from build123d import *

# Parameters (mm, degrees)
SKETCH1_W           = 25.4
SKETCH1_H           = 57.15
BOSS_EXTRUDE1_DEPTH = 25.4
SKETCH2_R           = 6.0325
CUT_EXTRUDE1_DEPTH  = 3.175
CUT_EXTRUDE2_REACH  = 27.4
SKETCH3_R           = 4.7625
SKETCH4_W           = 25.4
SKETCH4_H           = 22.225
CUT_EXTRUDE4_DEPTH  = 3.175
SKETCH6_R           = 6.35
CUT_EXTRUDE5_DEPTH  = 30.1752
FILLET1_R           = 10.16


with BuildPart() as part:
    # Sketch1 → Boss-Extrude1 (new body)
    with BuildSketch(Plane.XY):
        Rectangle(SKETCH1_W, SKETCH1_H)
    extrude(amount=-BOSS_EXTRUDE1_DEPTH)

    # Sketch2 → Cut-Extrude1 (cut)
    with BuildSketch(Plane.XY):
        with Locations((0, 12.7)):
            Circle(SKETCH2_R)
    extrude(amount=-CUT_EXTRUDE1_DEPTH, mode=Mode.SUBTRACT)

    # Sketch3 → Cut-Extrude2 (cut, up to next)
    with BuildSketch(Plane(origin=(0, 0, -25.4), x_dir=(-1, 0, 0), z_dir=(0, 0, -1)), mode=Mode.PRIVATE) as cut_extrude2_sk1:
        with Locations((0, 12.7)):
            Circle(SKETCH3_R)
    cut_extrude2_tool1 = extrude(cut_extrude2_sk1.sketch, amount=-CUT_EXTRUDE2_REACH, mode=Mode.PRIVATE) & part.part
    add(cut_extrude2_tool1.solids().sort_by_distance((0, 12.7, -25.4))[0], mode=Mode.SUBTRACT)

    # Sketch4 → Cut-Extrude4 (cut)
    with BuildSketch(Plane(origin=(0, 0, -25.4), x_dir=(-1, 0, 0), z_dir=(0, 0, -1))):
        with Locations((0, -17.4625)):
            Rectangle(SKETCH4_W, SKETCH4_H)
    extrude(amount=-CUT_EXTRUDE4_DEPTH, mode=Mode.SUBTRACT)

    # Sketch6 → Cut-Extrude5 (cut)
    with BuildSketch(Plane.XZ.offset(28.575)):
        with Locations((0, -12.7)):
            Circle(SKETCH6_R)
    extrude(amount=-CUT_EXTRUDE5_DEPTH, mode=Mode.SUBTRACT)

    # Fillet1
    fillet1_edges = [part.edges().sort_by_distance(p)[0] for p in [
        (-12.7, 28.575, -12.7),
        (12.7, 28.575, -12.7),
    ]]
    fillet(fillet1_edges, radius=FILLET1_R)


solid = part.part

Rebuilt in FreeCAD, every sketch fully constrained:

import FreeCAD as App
import Part
import Sketcher
from FreeCAD import Vector
Q = App.Units.Quantity


def edges_at(feature, points):
    """Names of the edges that pass closest to the given points."""
    edges = feature.Shape.Edges
    near = lambda p: min(range(len(edges)), key=lambda i: edges[i].distToShape(Part.Vertex(*p))[0])
    return sorted({f"Edge{near(p) + 1}" for p in points})

doc = App.newDocument("Part")
body = doc.addObject("PartDesign::Body", "Body")

# Sketch on XY plane
sketch1 = doc.addObject("Sketcher::SketchObject", "Sketch")
body.addObject(sketch1)
sketch1.AttachmentSupport = (doc.XY_Plane, [""])
sketch1.MapMode = "FlatFace"
sketch1.addGeometry(Part.LineSegment(Vector(-13, 29, 0), Vector(-13, -29, 0)), False)
sketch1.addGeometry(Part.LineSegment(Vector(-13, -29, 0), Vector(13, -29, 0)), False)
sketch1.addGeometry(Part.LineSegment(Vector(13, -29, 0), Vector(13, 29, 0)), False)
sketch1.addGeometry(Part.LineSegment(Vector(13, 29, 0), Vector(-13, 29, 0)), False)
sketch1.addConstraint(Sketcher.Constraint("Coincident", 0, 2, 1, 1))
sketch1.addConstraint(Sketcher.Constraint("Coincident", 1, 2, 2, 1))
sketch1.addConstraint(Sketcher.Constraint("Coincident", 2, 2, 3, 1))
sketch1.addConstraint(Sketcher.Constraint("Coincident", 3, 2, 0, 1))
sketch1.addConstraint(Sketcher.Constraint("Vertical", 0))
sketch1.addConstraint(Sketcher.Constraint("Horizontal", 1))
sketch1.addConstraint(Sketcher.Constraint("Vertical", 2))
sketch1.addConstraint(Sketcher.Constraint("Horizontal", 3))
sketch1.addConstraint(Sketcher.Constraint("Symmetric", 0, 2, 2, 2, -1, 1))
sketch1.addConstraint(Sketcher.Constraint("DistanceX", 1, 1, 1, 2, Q("1 in")))
sketch1.addConstraint(Sketcher.Constraint("DistanceY", 0, 2, 0, 1, Q("2.25 in")))
pad1 = doc.addObject("PartDesign::Pad", "Pad")
body.addObject(pad1)
pad1.Profile = sketch1
pad1.Length = Q("1 in")
pad1.Reversed = True

# Sketch on XY plane
sketch2 = doc.addObject("Sketcher::SketchObject", "Sketch001")
body.addObject(sketch2)
sketch2.AttachmentSupport = (doc.XY_Plane, [""])
sketch2.MapMode = "FlatFace"
sketch2.addGeometry(Part.Circle(Vector(0, 13, 0), Vector(0, 0, 1), 6), False)
sketch2.addConstraint(Sketcher.Constraint("PointOnObject", 0, 3, -2))
sketch2.addConstraint(Sketcher.Constraint("Diameter", 0, Q("0.475 in")))
sketch2.addConstraint(Sketcher.Constraint("DistanceY", -1, 1, 0, 3, Q("0.5 in")))
pocket1 = doc.addObject("PartDesign::Pocket", "Pocket")
body.addObject(pocket1)
pocket1.Profile = sketch2
pocket1.Length = Q("0.125 in")

# Sketch on XY plane
sketch3 = doc.addObject("Sketcher::SketchObject", "Sketch002")
body.addObject(sketch3)
sketch3.AttachmentSupport = (doc.XY_Plane, [""])
sketch3.MapMode = "FlatFace"
sketch3.AttachmentOffset = App.Placement(Vector(0, 0, -1 * 25.4), App.Rotation())
sketch3.addGeometry(Part.Circle(Vector(0, 12.7, 0), Vector(0, 0, 1), 4.8), False)
sketch3.addConstraint(Sketcher.Constraint("PointOnObject", 0, 3, -2))
sketch3.addConstraint(Sketcher.Constraint("Diameter", 0, Q("0.375 in")))
sketch3.addConstraint(Sketcher.Constraint("DistanceY", -1, 1, 0, 3, Q("0.5 in")))
pocket2 = doc.addObject("PartDesign::Pocket", "Pocket001")
body.addObject(pocket2)
pocket2.Profile = sketch3
pocket2.Type = "UpToFirst"
pocket2.Reversed = True

# Sketch on XY plane
sketch4 = doc.addObject("Sketcher::SketchObject", "Sketch003")
body.addObject(sketch4)
sketch4.AttachmentSupport = (doc.XY_Plane, [""])
sketch4.MapMode = "FlatFace"
sketch4.AttachmentOffset = App.Placement(Vector(0, 0, -1 * 25.4), App.Rotation())
sketch4.addGeometry(Part.LineSegment(Vector(13, -6, 0), Vector(13, -29, 0)), False)
sketch4.addGeometry(Part.LineSegment(Vector(13, -29, 0), Vector(-13, -29, 0)), False)
sketch4.addGeometry(Part.LineSegment(Vector(-13, -29, 0), Vector(-13, -6, 0)), False)
sketch4.addGeometry(Part.LineSegment(Vector(-13, -6, 0), Vector(13, -6, 0)), False)
sketch4.addConstraint(Sketcher.Constraint("Coincident", 0, 2, 1, 1))
sketch4.addConstraint(Sketcher.Constraint("Coincident", 1, 2, 2, 1))
sketch4.addConstraint(Sketcher.Constraint("Coincident", 2, 2, 3, 1))
sketch4.addConstraint(Sketcher.Constraint("Coincident", 3, 2, 0, 1))
sketch4.addConstraint(Sketcher.Constraint("Vertical", 0))
sketch4.addConstraint(Sketcher.Constraint("Horizontal", 1))
sketch4.addConstraint(Sketcher.Constraint("Vertical", 2))
sketch4.addConstraint(Sketcher.Constraint("Horizontal", 3))
sketch4.addConstraint(Sketcher.Constraint("DistanceX", 1, 2, 1, 1, Q("1 in")))
sketch4.addConstraint(Sketcher.Constraint("DistanceX", -1, 1, 0, 2, Q("0.5 in")))
sketch4.addConstraint(Sketcher.Constraint("DistanceY", 0, 2, 0, 1, Q("0.875 in")))
sketch4.addConstraint(Sketcher.Constraint("DistanceY", 2, 2, -1, 1, Q("0.25 in")))
pocket3 = doc.addObject("PartDesign::Pocket", "Pocket002")
body.addObject(pocket3)
pocket3.Profile = sketch4
pocket3.Length = Q("0.125 in")
pocket3.Reversed = True

# Sketch on XZ plane
sketch5 = doc.addObject("Sketcher::SketchObject", "Sketch004")
body.addObject(sketch5)
sketch5.AttachmentSupport = (doc.XZ_Plane, [""])
sketch5.MapMode = "FlatFace"
sketch5.AttachmentOffset = App.Placement(Vector(0, 0, 1.125 * 25.4), App.Rotation())
sketch5.addGeometry(Part.Circle(Vector(0, -13, 0), Vector(0, 0, 1), 6), False)
sketch5.addConstraint(Sketcher.Constraint("PointOnObject", 0, 3, -2))
sketch5.addConstraint(Sketcher.Constraint("Diameter", 0, Q("0.5 in")))
sketch5.addConstraint(Sketcher.Constraint("DistanceY", 0, 3, -1, 1, Q("0.5 in")))
pocket4 = doc.addObject("PartDesign::Pocket", "Pocket003")
body.addObject(pocket4)
pocket4.Profile = sketch5
pocket4.Length = Q("1.188 in")
doc.recompute()

fillet = doc.addObject("PartDesign::Fillet", "Fillet")
body.addObject(fillet)
fillet.Base = (pocket4, edges_at(pocket4, [(-12.7, 28.575, -12.7), (12.7, 28.575, -12.7)]))
fillet.Radius = Q("0.4 in")

doc.recompute()
